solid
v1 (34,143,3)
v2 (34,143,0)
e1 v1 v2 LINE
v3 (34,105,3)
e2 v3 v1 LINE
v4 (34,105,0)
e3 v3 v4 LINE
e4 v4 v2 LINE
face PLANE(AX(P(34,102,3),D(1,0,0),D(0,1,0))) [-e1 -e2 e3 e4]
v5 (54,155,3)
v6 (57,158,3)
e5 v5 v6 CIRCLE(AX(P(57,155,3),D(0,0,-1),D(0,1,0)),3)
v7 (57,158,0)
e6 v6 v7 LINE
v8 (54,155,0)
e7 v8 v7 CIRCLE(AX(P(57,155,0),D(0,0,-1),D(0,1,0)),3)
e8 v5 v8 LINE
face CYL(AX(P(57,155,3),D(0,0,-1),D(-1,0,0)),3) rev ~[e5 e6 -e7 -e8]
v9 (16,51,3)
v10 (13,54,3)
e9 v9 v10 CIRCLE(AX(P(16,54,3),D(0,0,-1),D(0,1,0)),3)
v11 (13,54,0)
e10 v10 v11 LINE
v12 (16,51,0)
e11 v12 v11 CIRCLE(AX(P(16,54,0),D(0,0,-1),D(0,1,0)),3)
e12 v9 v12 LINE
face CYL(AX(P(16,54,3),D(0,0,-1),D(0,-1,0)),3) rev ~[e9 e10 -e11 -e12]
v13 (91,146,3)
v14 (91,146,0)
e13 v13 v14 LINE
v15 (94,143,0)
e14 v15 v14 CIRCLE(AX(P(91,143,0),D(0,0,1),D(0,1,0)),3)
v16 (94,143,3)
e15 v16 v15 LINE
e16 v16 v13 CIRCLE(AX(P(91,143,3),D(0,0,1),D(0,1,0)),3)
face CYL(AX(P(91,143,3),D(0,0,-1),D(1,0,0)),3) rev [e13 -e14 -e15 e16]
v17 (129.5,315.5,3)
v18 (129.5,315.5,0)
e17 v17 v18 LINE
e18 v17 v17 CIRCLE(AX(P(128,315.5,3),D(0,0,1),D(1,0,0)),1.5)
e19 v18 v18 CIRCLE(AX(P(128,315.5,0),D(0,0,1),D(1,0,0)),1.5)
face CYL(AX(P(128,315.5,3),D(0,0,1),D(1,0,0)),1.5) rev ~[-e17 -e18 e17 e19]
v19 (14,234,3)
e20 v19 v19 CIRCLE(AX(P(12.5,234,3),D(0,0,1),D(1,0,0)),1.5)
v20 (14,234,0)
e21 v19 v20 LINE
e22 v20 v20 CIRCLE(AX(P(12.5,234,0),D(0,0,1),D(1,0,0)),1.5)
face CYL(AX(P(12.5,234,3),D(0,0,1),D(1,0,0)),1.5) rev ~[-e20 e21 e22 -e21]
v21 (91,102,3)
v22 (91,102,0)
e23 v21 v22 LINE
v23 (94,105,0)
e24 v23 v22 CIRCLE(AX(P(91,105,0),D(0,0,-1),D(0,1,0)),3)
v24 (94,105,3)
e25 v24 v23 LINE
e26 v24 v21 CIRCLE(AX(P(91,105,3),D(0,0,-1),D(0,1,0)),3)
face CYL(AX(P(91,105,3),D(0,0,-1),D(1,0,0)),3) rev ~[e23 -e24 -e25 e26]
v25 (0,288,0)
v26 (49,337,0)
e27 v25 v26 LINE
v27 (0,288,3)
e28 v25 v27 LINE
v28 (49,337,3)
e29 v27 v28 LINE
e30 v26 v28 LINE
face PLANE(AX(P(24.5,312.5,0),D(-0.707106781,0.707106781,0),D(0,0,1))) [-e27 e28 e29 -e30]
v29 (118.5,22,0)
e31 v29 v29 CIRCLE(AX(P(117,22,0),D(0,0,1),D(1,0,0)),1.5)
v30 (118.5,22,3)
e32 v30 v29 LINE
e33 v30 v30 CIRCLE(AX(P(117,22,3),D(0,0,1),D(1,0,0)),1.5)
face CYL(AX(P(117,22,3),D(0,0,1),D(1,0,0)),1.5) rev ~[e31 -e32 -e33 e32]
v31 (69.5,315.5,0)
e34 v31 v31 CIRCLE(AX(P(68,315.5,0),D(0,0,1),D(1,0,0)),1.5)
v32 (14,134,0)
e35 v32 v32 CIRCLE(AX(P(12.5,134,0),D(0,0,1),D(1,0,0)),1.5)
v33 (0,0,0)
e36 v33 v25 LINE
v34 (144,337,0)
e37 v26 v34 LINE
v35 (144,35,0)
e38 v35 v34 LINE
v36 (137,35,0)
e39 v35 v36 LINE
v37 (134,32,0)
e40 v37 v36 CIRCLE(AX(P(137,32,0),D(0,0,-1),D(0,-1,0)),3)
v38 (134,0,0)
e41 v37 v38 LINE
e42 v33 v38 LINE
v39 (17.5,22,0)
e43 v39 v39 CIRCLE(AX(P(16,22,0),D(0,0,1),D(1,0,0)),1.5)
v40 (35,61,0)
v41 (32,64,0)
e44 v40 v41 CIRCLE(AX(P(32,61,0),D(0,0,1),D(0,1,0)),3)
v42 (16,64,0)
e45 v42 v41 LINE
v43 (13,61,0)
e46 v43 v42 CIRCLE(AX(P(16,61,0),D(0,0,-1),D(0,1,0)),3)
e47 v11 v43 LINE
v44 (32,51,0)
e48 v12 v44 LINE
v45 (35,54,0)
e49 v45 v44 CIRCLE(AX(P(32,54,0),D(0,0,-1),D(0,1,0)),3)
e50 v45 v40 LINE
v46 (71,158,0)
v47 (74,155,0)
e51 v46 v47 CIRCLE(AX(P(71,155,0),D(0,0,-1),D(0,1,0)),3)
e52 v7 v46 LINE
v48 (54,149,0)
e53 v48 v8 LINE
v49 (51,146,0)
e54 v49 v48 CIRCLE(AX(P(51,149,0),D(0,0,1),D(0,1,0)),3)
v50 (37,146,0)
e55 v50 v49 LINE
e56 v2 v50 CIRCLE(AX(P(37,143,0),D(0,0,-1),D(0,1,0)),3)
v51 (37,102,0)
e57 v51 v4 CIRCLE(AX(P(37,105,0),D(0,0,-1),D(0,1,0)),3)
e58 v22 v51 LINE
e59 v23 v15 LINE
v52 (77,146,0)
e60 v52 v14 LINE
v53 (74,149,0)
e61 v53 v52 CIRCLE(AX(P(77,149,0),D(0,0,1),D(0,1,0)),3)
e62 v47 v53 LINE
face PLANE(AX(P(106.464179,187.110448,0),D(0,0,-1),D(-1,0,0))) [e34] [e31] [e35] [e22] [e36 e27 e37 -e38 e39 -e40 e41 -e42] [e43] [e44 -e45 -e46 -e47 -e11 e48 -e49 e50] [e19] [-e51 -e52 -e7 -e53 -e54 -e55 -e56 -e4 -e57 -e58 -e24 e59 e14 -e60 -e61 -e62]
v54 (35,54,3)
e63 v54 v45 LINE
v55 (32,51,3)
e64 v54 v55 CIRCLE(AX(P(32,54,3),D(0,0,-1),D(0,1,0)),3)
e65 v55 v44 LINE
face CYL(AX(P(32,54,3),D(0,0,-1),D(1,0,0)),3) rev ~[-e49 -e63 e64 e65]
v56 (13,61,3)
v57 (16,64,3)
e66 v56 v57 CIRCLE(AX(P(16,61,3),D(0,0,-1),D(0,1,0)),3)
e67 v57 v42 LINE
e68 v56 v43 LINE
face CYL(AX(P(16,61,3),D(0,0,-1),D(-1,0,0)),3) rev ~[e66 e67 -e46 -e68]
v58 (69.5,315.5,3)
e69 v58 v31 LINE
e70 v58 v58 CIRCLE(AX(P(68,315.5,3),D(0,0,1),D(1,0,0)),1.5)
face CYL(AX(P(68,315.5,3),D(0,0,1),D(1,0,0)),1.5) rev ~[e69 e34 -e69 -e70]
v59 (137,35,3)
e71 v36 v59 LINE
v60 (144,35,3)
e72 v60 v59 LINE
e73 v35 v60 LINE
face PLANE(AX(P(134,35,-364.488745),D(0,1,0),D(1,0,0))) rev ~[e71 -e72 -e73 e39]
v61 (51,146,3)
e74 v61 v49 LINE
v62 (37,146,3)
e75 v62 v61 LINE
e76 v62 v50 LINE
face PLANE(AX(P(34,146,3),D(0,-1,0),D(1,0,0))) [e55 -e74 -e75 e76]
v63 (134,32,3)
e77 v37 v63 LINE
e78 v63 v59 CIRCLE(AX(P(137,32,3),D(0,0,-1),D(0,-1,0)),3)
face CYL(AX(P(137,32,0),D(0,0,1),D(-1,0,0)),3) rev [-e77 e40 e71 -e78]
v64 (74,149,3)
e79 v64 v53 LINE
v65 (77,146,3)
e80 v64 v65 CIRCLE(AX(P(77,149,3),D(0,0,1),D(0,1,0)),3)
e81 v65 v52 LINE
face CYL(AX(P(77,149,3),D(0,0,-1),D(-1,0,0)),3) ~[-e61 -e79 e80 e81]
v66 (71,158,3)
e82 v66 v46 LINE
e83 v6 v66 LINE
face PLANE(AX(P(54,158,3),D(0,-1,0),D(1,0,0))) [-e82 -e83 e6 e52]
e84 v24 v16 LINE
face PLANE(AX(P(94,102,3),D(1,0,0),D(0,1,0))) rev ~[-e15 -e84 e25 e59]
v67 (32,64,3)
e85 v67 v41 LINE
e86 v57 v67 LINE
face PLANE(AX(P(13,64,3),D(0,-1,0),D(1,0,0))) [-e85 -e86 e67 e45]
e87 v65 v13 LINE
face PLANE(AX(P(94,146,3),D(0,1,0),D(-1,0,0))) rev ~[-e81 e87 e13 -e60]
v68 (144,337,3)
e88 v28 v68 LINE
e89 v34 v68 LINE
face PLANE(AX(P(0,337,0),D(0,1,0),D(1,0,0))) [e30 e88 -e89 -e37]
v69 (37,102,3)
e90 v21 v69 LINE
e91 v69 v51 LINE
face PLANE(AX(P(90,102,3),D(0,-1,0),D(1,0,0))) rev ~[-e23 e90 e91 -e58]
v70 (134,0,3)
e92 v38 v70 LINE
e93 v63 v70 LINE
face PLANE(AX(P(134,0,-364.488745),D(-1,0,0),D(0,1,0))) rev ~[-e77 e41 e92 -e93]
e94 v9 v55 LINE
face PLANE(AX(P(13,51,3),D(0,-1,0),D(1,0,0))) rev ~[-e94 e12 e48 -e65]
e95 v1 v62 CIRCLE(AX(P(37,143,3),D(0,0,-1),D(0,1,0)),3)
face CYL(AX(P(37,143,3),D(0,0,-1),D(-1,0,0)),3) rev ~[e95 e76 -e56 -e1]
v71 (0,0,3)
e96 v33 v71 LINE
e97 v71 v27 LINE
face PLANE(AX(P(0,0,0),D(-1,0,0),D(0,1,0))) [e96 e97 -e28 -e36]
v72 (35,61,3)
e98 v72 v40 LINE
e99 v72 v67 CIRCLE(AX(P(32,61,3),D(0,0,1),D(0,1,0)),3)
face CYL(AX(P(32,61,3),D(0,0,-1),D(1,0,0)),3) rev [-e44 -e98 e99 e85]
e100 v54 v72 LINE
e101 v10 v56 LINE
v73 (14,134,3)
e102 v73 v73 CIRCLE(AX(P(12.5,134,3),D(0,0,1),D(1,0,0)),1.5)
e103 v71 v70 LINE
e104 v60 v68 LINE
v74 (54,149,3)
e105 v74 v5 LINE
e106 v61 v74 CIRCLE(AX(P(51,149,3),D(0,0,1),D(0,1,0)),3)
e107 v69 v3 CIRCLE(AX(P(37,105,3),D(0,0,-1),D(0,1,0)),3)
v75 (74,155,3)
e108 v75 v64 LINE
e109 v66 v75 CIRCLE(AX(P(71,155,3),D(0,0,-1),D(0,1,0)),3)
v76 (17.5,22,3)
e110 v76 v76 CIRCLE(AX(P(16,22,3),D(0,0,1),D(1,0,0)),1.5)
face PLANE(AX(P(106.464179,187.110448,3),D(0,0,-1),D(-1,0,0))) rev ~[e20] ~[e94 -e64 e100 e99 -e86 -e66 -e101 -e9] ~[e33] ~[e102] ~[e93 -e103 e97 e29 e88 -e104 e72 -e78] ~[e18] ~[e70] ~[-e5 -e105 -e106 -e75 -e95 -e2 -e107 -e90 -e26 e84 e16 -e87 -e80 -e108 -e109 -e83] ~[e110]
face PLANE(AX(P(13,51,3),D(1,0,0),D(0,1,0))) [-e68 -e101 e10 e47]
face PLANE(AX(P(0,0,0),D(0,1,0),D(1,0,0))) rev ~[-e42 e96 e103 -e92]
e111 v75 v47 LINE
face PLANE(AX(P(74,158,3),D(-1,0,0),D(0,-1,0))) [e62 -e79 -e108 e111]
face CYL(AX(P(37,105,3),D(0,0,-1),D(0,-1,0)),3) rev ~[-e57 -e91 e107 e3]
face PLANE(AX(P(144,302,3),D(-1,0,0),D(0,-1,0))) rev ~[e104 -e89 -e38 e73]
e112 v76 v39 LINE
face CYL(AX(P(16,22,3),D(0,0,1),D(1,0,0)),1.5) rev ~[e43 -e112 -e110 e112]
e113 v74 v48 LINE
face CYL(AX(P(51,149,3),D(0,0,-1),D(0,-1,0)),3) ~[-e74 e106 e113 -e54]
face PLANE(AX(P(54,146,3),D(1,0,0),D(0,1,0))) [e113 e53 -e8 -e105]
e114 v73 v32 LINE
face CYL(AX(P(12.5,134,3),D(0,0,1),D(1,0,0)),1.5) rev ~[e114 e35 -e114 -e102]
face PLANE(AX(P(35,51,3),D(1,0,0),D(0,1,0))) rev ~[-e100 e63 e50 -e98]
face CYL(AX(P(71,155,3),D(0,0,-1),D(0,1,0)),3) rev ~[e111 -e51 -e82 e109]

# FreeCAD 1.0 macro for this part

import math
import FreeCAD as App
import Part
import Sketcher

V = App.Vector
Q = App.Units.Quantity


def edges_at(feature, points):
    """Names of the edges that pass closest to the given points."""
    edges = feature.Shape.Edges
    near = lambda p: min(range(len(edges)), key=lambda i: edges[i].distToShape(Part.Vertex(*p))[0])
    return sorted({f"Edge{near(p) + 1}" for p in points})


def add_polygon(sketch, points):
    """Adds a closed chain of lines whose ends are joined by coincident constraints."""
    first, n = sketch.GeometryCount, len(points)
    for a, b in zip(points, points[1:] + points[:1]):
        sketch.addGeometry(Part.LineSegment(App.Vector(*a, 0), App.Vector(*b, 0)), False)
    for i in range(n):
        sketch.addConstraint(Sketcher.Constraint("Coincident", first + i, 2, first + (i + 1) % n, 1))

doc = App.newDocument("Part")
body = doc.addObject("PartDesign::Body", "Body")

sketch1 = body.newObject("Sketcher::SketchObject", "Sketch")
sketch1.AttachmentSupport = (doc.getObject("XY_Plane"), [""])
sketch1.MapMode = "FlatFace"
add_polygon(sketch1, [(0, 337), (0, 0), (144, 0), (144, 337)])
sketch1.addConstraint(Sketcher.Constraint("Vertical", 0))
sketch1.addConstraint(Sketcher.Constraint("Horizontal", 1))
sketch1.addConstraint(Sketcher.Constraint("Vertical", 2))
sketch1.addConstraint(Sketcher.Constraint("Horizontal", 3))
sketch1.addConstraint(Sketcher.Constraint("Coincident", 0, 2, -1, 1))
sketch1.addConstraint(Sketcher.Constraint("DistanceX", 1, 1, 1, 2, Q("144 mm")))
sketch1.addConstraint(Sketcher.Constraint("DistanceY", 0, 2, 0, 1, Q("337 mm")))
pad1 = body.newObject("PartDesign::Pad", "Pad")
pad1.Profile = sketch1
pad1.Length = 3

sketch2 = body.newObject("Sketcher::SketchObject", "Sketch001")
sketch2.AttachmentSupport = (doc.getObject("XY_Plane"), [""])
sketch2.MapMode = "FlatFace"
sketch2.AttachmentOffset = App.Placement(V(0, 0, 3), App.Rotation())
sketch2.addGeometry(Part.Circle(V(16, 22, 0), V(0, 0, 1), 1.5), False)
sketch2.addGeometry(Part.Circle(V(12.5, 234, 0), V(0, 0, 1), 1.5), False)
sketch2.addGeometry(Part.Circle(V(12.5, 134, 0), V(0, 0, 1), 1.5), False)
sketch2.addGeometry(Part.Circle(V(68, 315.5, 0), V(0, 0, 1), 1.5), False)
sketch2.addGeometry(Part.Circle(V(128, 315.5, 0), V(0, 0, 1), 1.5), False)
sketch2.addGeometry(Part.Circle(V(117, 22, 0), V(0, 0, 1), 1.5), False)
sketch2.addConstraint(Sketcher.Constraint("Equal", 0, 1))
sketch2.addConstraint(Sketcher.Constraint("Equal", 1, 2))
sketch2.addConstraint(Sketcher.Constraint("Equal", 2, 3))
sketch2.addConstraint(Sketcher.Constraint("Equal", 3, 4))
sketch2.addConstraint(Sketcher.Constraint("Equal", 4, 5))
sketch2.addConstraint(Sketcher.Constraint("Horizontal", 3, 3, 4, 3))
sketch2.addConstraint(Sketcher.Constraint("Horizontal", 0, 3, 5, 3))
sketch2.addConstraint(Sketcher.Constraint("Vertical", 1, 3, 2, 3))
sketch2.addConstraint(Sketcher.Constraint("Diameter", 0, Q("3 mm")))
sketch2.addConstraint(Sketcher.Constraint("DistanceX", -1, 1, 0, 3, Q("16 mm")))
sketch2.addConstraint(Sketcher.Constraint("DistanceY", -1, 1, 0, 3, Q("22 mm")))
sketch2.addConstraint(Sketcher.Constraint("DistanceY", -1, 1, 1, 3, Q("234 mm")))
sketch2.addConstraint(Sketcher.Constraint("DistanceY", -1, 1, 2, 3, Q("134 mm")))
sketch2.addConstraint(Sketcher.Constraint("DistanceX", -1, 1, 3, 3, Q("68 mm")))
sketch2.addConstraint(Sketcher.Constraint("DistanceX", -1, 1, 4, 3, Q("128 mm")))
sketch2.addConstraint(Sketcher.Constraint("DistanceX", -1, 1, 5, 3, Q("117 mm")))
sketch2.addConstraint(Sketcher.Constraint("DistanceX", -1, 1, 1, 3, Q("12.5 mm")))
sketch2.addConstraint(Sketcher.Constraint("DistanceY", -1, 1, 3, 3, Q("315.5 mm")))
pocket1 = body.newObject("PartDesign::Pocket", "Pocket")
pocket1.Profile = sketch2
pocket1.Type = "ThroughAll"
doc.recompute()

chamfer = body.newObject("PartDesign::Chamfer", "Chamfer")
chamfer.Base = (pocket1, edges_at(pocket1, [(0, 337, 1.5)]))
chamfer.Size = 49

sketch3 = body.newObject("Sketcher::SketchObject", "Sketch002")
sketch3.AttachmentSupport = (doc.getObject("XY_Plane"), [""])
sketch3.MapMode = "FlatFace"
sketch3.AttachmentOffset = App.Placement(V(0, 0, 3), App.Rotation())
add_polygon(sketch3, [(134, 35), (134, 0), (144, 0), (144, 35)])
sketch3.addConstraint(Sketcher.Constraint("Vertical", 0))
sketch3.addConstraint(Sketcher.Constraint("Horizontal", 1))
sketch3.addConstraint(Sketcher.Constraint("Vertical", 2))
sketch3.addConstraint(Sketcher.Constraint("Horizontal", 3))
sketch3.addConstraint(Sketcher.Constraint("PointOnObject", 0, 2, -1))
sketch3.addConstraint(Sketcher.Constraint("DistanceX", 1, 1, 1, 2, Q("10 mm")))
sketch3.addConstraint(Sketcher.Constraint("DistanceY", 0, 2, 0, 1, Q("35 mm")))
sketch3.addConstraint(Sketcher.Constraint("DistanceX", -1, 1, 0, 2, Q("134 mm")))
pocket2 = body.newObject("PartDesign::Pocket", "Pocket001")
pocket2.Profile = sketch3
pocket2.Type = "ThroughAll"
pocket2.Midplane = True

sketch4 = body.newObject("Sketcher::SketchObject", "Sketch003")
sketch4.AttachmentSupport = (doc.getObject("XY_Plane"), [""])
sketch4.MapMode = "FlatFace"
sketch4.AttachmentOffset = App.Placement(V(0, 0, 3), App.Rotation())
add_polygon(sketch4, [(13, 64), (13, 51), (35, 51), (35, 64)])
sketch4.addConstraint(Sketcher.Constraint("Vertical", 0))
sketch4.addConstraint(Sketcher.Constraint("Horizontal", 1))
sketch4.addConstraint(Sketcher.Constraint("Vertical", 2))
sketch4.addConstraint(Sketcher.Constraint("Horizontal", 3))
sketch4.addConstraint(Sketcher.Constraint("DistanceX", 1, 1, 1, 2, Q("22 mm")))
sketch4.addConstraint(Sketcher.Constraint("DistanceY", 0, 2, 0, 1, Q("13 mm")))
sketch4.addConstraint(Sketcher.Constraint("DistanceX", -1, 1, 0, 2, Q("13 mm")))
sketch4.addConstraint(Sketcher.Constraint("DistanceY", -1, 1, 0, 2, Q("51 mm")))
pocket3 = body.newObject("PartDesign::Pocket", "Pocket002")
pocket3.Profile = sketch4
pocket3.Type = "ThroughAll"

sketch5 = body.newObject("Sketcher::SketchObject", "Sketch004")
sketch5.AttachmentSupport = (doc.getObject("XY_Plane"), [""])
sketch5.MapMode = "FlatFace"
sketch5.AttachmentOffset = App.Placement(V(0, 0, 3), App.Rotation())
sketch5.addGeometry(Part.LineSegment(V(90, 60, 0), V(144, 60, 0)), False)
sketch5.addGeometry(Part.LineSegment(V(144, 60, 0), V(144, 297, 0)), False)
sketch5.addGeometry(Part.ArcOfCircle(Part.Circle(V(122, 241, 0), V(0, 0, 1), 60), math.radians(68), math.radians(238)), False)
sketch5.addGeometry(Part.LineSegment(V(90, 190, 0), V(90, 60, 0)), False)
sketch5.addConstraint(Sketcher.Constraint("Coincident", 0, 2, 1, 1))
sketch5.addConstraint(Sketcher.Constraint("Coincident", 1, 2, 2, 1))
sketch5.addConstraint(Sketcher.Constraint("Coincident", 2, 2, 3, 1))
sketch5.addConstraint(Sketcher.Constraint("Coincident", 3, 2, 0, 1))
sketch5.addConstraint(Sketcher.Constraint("Horizontal", 0))
sketch5.addConstraint(Sketcher.Constraint("Vertical", 1))
sketch5.addConstraint(Sketcher.Constraint("Vertical", 3))
sketch5.addConstraint(Sketcher.Constraint("Radius", 2, Q("60 mm")))
sketch5.addConstraint(Sketcher.Constraint("DistanceX", 0, 1, 0, 2, Q("54 mm")))
sketch5.addConstraint(Sketcher.Constraint("DistanceY", 3, 2, 3, 1, Q("130 mm")))
sketch5.addConstraint(Sketcher.Constraint("DistanceX", -1, 1, 0, 2, Q("144 mm")))
sketch5.addConstraint(Sketcher.Constraint("DistanceY", -1, 1, 0, 2, Q("60 mm")))
sketch5.addConstraint(Sketcher.Constraint("DistanceY", 1, 1, 1, 2, Q("236.576429 mm")))
pocket4 = body.newObject("PartDesign::Pocket", "Pocket003")
pocket4.Profile = sketch5
pocket4.Type = "ThroughAll"

sketch6 = body.newObject("Sketcher::SketchObject", "Sketch005")
sketch6.AttachmentSupport = (doc.getObject("XY_Plane"), [""])
sketch6.MapMode = "FlatFace"
sketch6.AttachmentOffset = App.Placement(V(0, 0, 3), App.Rotation())
add_polygon(sketch6, [(34, 102), (94, 102), (94, 146), (74, 146), (74, 158), (54, 158), (54, 146), (34, 146)])
sketch6.addConstraint(Sketcher.Constraint("Horizontal", 0))
sketch6.addConstraint(Sketcher.Constraint("Vertical", 1))
sketch6.addConstraint(Sketcher.Constraint("Horizontal", 2))
sketch6.addConstraint(Sketcher.Constraint("Vertical", 3))
sketch6.addConstraint(Sketcher.Constraint("Horizontal", 4))
sketch6.addConstraint(Sketcher.Constraint("Vertical", 5))
sketch6.addConstraint(Sketcher.Constraint("Horizontal", 6))
sketch6.addConstraint(Sketcher.Constraint("Vertical", 7))
sketch6.addConstraint(Sketcher.Constraint("Horizontal", 2, 2, 5, 2))
sketch6.addConstraint(Sketcher.Constraint("Equal", 2, 4))
sketch6.addConstraint(Sketcher.Constraint("Equal", 4, 6))
sketch6.addConstraint(Sketcher.Constraint("DistanceX", 0, 1, 0, 2, Q("60 mm")))
sketch6.addConstraint(Sketcher.Constraint("DistanceY", 1, 1, 1, 2, Q("44 mm")))
sketch6.addConstraint(Sketcher.Constraint("DistanceY", 3, 1, 3, 2, Q("12 mm")))
sketch6.addConstraint(Sketcher.Constraint("DistanceX", -1, 1, 0, 2, Q("94 mm")))
sketch6.addConstraint(Sketcher.Constraint("DistanceY", -1, 1, 0, 2, Q("102 mm")))
pocket5 = body.newObject("PartDesign::Pocket", "Pocket004")
pocket5.Profile = sketch6
pocket5.Type = "ThroughAll"

sketch7 = body.newObject("Sketcher::SketchObject", "Sketch006")
sketch7.AttachmentSupport = (doc.getObject("XY_Plane"), [""])
sketch7.MapMode = "FlatFace"
sketch7.AttachmentOffset = App.Placement(V(0, 0, 3), App.Rotation())
add_polygon(sketch7, [(90, 60), (144, 60), (144, 302), (55, 302), (55, 190), (90, 190), (90, 146), (94, 146), (94, 102), (90, 102)])
sketch7.addConstraint(Sketcher.Constraint("Horizontal", 0))
sketch7.addConstraint(Sketcher.Constraint("Vertical", 1))
sketch7.addConstraint(Sketcher.Constraint("Horizontal", 2))
sketch7.addConstraint(Sketcher.Constraint("Vertical", 3))
sketch7.addConstraint(Sketcher.Constraint("Horizontal", 4))
sketch7.addConstraint(Sketcher.Constraint("Vertical", 5))
sketch7.addConstraint(Sketcher.Constraint("Horizontal", 6))
sketch7.addConstraint(Sketcher.Constraint("Vertical", 7))
sketch7.addConstraint(Sketcher.Constraint("Horizontal", 8))
sketch7.addConstraint(Sketcher.Constraint("Vertical", 9))
sketch7.addConstraint(Sketcher.Constraint("Vertical", 5, 2, 8, 2))
sketch7.addConstraint(Sketcher.Constraint("Equal", 5, 7))
sketch7.addConstraint(Sketcher.Constraint("DistanceX", 0, 1, 0, 2, Q("54 mm")))
sketch7.addConstraint(Sketcher.Constraint("DistanceX", 2, 2, 2, 1, Q("89 mm")))
sketch7.addConstraint(Sketcher.Constraint("DistanceX", 6, 1, 6, 2, Q("4 mm")))
sketch7.addConstraint(Sketcher.Constraint("DistanceY", 1, 1, 1, 2, Q("242 mm")))
sketch7.addConstraint(Sketcher.Constraint("DistanceY", 3, 2, 3, 1, Q("112 mm")))
sketch7.addConstraint(Sketcher.Constraint("DistanceY", 5, 2, 5, 1, Q("44 mm")))
sketch7.addConstraint(Sketcher.Constraint("DistanceX", -1, 1, 0, 2, Q("144 mm")))
sketch7.addConstraint(Sketcher.Constraint("DistanceY", -1, 1, 0, 2, Q("60 mm")))
pad2 = body.newObject("PartDesign::Pad", "Pad001")
pad2.Profile = sketch7
pad2.Length = 3
pad2.Reversed = True
doc.recompute()

fillet = body.newObject("PartDesign::Fillet", "Fillet")
fillet.Base = (pad2, edges_at(pad2, [
    (74, 146, 1.5),
    (34, 102, 1.5),
    (34, 146, 1.5),
    (54, 146, 1.5),
    (54, 158, 1.5),
    (74, 158, 1.5),
    (94, 102, 1.5),
    (94, 146, 1.5),
    (134, 35, 1.5),
    (13, 51, 1.5),
    (13, 64, 1.5),
    (35, 64, 1.5),
    (35, 51, 1.5),
]))
fillet.Radius = 3

doc.recompute()
